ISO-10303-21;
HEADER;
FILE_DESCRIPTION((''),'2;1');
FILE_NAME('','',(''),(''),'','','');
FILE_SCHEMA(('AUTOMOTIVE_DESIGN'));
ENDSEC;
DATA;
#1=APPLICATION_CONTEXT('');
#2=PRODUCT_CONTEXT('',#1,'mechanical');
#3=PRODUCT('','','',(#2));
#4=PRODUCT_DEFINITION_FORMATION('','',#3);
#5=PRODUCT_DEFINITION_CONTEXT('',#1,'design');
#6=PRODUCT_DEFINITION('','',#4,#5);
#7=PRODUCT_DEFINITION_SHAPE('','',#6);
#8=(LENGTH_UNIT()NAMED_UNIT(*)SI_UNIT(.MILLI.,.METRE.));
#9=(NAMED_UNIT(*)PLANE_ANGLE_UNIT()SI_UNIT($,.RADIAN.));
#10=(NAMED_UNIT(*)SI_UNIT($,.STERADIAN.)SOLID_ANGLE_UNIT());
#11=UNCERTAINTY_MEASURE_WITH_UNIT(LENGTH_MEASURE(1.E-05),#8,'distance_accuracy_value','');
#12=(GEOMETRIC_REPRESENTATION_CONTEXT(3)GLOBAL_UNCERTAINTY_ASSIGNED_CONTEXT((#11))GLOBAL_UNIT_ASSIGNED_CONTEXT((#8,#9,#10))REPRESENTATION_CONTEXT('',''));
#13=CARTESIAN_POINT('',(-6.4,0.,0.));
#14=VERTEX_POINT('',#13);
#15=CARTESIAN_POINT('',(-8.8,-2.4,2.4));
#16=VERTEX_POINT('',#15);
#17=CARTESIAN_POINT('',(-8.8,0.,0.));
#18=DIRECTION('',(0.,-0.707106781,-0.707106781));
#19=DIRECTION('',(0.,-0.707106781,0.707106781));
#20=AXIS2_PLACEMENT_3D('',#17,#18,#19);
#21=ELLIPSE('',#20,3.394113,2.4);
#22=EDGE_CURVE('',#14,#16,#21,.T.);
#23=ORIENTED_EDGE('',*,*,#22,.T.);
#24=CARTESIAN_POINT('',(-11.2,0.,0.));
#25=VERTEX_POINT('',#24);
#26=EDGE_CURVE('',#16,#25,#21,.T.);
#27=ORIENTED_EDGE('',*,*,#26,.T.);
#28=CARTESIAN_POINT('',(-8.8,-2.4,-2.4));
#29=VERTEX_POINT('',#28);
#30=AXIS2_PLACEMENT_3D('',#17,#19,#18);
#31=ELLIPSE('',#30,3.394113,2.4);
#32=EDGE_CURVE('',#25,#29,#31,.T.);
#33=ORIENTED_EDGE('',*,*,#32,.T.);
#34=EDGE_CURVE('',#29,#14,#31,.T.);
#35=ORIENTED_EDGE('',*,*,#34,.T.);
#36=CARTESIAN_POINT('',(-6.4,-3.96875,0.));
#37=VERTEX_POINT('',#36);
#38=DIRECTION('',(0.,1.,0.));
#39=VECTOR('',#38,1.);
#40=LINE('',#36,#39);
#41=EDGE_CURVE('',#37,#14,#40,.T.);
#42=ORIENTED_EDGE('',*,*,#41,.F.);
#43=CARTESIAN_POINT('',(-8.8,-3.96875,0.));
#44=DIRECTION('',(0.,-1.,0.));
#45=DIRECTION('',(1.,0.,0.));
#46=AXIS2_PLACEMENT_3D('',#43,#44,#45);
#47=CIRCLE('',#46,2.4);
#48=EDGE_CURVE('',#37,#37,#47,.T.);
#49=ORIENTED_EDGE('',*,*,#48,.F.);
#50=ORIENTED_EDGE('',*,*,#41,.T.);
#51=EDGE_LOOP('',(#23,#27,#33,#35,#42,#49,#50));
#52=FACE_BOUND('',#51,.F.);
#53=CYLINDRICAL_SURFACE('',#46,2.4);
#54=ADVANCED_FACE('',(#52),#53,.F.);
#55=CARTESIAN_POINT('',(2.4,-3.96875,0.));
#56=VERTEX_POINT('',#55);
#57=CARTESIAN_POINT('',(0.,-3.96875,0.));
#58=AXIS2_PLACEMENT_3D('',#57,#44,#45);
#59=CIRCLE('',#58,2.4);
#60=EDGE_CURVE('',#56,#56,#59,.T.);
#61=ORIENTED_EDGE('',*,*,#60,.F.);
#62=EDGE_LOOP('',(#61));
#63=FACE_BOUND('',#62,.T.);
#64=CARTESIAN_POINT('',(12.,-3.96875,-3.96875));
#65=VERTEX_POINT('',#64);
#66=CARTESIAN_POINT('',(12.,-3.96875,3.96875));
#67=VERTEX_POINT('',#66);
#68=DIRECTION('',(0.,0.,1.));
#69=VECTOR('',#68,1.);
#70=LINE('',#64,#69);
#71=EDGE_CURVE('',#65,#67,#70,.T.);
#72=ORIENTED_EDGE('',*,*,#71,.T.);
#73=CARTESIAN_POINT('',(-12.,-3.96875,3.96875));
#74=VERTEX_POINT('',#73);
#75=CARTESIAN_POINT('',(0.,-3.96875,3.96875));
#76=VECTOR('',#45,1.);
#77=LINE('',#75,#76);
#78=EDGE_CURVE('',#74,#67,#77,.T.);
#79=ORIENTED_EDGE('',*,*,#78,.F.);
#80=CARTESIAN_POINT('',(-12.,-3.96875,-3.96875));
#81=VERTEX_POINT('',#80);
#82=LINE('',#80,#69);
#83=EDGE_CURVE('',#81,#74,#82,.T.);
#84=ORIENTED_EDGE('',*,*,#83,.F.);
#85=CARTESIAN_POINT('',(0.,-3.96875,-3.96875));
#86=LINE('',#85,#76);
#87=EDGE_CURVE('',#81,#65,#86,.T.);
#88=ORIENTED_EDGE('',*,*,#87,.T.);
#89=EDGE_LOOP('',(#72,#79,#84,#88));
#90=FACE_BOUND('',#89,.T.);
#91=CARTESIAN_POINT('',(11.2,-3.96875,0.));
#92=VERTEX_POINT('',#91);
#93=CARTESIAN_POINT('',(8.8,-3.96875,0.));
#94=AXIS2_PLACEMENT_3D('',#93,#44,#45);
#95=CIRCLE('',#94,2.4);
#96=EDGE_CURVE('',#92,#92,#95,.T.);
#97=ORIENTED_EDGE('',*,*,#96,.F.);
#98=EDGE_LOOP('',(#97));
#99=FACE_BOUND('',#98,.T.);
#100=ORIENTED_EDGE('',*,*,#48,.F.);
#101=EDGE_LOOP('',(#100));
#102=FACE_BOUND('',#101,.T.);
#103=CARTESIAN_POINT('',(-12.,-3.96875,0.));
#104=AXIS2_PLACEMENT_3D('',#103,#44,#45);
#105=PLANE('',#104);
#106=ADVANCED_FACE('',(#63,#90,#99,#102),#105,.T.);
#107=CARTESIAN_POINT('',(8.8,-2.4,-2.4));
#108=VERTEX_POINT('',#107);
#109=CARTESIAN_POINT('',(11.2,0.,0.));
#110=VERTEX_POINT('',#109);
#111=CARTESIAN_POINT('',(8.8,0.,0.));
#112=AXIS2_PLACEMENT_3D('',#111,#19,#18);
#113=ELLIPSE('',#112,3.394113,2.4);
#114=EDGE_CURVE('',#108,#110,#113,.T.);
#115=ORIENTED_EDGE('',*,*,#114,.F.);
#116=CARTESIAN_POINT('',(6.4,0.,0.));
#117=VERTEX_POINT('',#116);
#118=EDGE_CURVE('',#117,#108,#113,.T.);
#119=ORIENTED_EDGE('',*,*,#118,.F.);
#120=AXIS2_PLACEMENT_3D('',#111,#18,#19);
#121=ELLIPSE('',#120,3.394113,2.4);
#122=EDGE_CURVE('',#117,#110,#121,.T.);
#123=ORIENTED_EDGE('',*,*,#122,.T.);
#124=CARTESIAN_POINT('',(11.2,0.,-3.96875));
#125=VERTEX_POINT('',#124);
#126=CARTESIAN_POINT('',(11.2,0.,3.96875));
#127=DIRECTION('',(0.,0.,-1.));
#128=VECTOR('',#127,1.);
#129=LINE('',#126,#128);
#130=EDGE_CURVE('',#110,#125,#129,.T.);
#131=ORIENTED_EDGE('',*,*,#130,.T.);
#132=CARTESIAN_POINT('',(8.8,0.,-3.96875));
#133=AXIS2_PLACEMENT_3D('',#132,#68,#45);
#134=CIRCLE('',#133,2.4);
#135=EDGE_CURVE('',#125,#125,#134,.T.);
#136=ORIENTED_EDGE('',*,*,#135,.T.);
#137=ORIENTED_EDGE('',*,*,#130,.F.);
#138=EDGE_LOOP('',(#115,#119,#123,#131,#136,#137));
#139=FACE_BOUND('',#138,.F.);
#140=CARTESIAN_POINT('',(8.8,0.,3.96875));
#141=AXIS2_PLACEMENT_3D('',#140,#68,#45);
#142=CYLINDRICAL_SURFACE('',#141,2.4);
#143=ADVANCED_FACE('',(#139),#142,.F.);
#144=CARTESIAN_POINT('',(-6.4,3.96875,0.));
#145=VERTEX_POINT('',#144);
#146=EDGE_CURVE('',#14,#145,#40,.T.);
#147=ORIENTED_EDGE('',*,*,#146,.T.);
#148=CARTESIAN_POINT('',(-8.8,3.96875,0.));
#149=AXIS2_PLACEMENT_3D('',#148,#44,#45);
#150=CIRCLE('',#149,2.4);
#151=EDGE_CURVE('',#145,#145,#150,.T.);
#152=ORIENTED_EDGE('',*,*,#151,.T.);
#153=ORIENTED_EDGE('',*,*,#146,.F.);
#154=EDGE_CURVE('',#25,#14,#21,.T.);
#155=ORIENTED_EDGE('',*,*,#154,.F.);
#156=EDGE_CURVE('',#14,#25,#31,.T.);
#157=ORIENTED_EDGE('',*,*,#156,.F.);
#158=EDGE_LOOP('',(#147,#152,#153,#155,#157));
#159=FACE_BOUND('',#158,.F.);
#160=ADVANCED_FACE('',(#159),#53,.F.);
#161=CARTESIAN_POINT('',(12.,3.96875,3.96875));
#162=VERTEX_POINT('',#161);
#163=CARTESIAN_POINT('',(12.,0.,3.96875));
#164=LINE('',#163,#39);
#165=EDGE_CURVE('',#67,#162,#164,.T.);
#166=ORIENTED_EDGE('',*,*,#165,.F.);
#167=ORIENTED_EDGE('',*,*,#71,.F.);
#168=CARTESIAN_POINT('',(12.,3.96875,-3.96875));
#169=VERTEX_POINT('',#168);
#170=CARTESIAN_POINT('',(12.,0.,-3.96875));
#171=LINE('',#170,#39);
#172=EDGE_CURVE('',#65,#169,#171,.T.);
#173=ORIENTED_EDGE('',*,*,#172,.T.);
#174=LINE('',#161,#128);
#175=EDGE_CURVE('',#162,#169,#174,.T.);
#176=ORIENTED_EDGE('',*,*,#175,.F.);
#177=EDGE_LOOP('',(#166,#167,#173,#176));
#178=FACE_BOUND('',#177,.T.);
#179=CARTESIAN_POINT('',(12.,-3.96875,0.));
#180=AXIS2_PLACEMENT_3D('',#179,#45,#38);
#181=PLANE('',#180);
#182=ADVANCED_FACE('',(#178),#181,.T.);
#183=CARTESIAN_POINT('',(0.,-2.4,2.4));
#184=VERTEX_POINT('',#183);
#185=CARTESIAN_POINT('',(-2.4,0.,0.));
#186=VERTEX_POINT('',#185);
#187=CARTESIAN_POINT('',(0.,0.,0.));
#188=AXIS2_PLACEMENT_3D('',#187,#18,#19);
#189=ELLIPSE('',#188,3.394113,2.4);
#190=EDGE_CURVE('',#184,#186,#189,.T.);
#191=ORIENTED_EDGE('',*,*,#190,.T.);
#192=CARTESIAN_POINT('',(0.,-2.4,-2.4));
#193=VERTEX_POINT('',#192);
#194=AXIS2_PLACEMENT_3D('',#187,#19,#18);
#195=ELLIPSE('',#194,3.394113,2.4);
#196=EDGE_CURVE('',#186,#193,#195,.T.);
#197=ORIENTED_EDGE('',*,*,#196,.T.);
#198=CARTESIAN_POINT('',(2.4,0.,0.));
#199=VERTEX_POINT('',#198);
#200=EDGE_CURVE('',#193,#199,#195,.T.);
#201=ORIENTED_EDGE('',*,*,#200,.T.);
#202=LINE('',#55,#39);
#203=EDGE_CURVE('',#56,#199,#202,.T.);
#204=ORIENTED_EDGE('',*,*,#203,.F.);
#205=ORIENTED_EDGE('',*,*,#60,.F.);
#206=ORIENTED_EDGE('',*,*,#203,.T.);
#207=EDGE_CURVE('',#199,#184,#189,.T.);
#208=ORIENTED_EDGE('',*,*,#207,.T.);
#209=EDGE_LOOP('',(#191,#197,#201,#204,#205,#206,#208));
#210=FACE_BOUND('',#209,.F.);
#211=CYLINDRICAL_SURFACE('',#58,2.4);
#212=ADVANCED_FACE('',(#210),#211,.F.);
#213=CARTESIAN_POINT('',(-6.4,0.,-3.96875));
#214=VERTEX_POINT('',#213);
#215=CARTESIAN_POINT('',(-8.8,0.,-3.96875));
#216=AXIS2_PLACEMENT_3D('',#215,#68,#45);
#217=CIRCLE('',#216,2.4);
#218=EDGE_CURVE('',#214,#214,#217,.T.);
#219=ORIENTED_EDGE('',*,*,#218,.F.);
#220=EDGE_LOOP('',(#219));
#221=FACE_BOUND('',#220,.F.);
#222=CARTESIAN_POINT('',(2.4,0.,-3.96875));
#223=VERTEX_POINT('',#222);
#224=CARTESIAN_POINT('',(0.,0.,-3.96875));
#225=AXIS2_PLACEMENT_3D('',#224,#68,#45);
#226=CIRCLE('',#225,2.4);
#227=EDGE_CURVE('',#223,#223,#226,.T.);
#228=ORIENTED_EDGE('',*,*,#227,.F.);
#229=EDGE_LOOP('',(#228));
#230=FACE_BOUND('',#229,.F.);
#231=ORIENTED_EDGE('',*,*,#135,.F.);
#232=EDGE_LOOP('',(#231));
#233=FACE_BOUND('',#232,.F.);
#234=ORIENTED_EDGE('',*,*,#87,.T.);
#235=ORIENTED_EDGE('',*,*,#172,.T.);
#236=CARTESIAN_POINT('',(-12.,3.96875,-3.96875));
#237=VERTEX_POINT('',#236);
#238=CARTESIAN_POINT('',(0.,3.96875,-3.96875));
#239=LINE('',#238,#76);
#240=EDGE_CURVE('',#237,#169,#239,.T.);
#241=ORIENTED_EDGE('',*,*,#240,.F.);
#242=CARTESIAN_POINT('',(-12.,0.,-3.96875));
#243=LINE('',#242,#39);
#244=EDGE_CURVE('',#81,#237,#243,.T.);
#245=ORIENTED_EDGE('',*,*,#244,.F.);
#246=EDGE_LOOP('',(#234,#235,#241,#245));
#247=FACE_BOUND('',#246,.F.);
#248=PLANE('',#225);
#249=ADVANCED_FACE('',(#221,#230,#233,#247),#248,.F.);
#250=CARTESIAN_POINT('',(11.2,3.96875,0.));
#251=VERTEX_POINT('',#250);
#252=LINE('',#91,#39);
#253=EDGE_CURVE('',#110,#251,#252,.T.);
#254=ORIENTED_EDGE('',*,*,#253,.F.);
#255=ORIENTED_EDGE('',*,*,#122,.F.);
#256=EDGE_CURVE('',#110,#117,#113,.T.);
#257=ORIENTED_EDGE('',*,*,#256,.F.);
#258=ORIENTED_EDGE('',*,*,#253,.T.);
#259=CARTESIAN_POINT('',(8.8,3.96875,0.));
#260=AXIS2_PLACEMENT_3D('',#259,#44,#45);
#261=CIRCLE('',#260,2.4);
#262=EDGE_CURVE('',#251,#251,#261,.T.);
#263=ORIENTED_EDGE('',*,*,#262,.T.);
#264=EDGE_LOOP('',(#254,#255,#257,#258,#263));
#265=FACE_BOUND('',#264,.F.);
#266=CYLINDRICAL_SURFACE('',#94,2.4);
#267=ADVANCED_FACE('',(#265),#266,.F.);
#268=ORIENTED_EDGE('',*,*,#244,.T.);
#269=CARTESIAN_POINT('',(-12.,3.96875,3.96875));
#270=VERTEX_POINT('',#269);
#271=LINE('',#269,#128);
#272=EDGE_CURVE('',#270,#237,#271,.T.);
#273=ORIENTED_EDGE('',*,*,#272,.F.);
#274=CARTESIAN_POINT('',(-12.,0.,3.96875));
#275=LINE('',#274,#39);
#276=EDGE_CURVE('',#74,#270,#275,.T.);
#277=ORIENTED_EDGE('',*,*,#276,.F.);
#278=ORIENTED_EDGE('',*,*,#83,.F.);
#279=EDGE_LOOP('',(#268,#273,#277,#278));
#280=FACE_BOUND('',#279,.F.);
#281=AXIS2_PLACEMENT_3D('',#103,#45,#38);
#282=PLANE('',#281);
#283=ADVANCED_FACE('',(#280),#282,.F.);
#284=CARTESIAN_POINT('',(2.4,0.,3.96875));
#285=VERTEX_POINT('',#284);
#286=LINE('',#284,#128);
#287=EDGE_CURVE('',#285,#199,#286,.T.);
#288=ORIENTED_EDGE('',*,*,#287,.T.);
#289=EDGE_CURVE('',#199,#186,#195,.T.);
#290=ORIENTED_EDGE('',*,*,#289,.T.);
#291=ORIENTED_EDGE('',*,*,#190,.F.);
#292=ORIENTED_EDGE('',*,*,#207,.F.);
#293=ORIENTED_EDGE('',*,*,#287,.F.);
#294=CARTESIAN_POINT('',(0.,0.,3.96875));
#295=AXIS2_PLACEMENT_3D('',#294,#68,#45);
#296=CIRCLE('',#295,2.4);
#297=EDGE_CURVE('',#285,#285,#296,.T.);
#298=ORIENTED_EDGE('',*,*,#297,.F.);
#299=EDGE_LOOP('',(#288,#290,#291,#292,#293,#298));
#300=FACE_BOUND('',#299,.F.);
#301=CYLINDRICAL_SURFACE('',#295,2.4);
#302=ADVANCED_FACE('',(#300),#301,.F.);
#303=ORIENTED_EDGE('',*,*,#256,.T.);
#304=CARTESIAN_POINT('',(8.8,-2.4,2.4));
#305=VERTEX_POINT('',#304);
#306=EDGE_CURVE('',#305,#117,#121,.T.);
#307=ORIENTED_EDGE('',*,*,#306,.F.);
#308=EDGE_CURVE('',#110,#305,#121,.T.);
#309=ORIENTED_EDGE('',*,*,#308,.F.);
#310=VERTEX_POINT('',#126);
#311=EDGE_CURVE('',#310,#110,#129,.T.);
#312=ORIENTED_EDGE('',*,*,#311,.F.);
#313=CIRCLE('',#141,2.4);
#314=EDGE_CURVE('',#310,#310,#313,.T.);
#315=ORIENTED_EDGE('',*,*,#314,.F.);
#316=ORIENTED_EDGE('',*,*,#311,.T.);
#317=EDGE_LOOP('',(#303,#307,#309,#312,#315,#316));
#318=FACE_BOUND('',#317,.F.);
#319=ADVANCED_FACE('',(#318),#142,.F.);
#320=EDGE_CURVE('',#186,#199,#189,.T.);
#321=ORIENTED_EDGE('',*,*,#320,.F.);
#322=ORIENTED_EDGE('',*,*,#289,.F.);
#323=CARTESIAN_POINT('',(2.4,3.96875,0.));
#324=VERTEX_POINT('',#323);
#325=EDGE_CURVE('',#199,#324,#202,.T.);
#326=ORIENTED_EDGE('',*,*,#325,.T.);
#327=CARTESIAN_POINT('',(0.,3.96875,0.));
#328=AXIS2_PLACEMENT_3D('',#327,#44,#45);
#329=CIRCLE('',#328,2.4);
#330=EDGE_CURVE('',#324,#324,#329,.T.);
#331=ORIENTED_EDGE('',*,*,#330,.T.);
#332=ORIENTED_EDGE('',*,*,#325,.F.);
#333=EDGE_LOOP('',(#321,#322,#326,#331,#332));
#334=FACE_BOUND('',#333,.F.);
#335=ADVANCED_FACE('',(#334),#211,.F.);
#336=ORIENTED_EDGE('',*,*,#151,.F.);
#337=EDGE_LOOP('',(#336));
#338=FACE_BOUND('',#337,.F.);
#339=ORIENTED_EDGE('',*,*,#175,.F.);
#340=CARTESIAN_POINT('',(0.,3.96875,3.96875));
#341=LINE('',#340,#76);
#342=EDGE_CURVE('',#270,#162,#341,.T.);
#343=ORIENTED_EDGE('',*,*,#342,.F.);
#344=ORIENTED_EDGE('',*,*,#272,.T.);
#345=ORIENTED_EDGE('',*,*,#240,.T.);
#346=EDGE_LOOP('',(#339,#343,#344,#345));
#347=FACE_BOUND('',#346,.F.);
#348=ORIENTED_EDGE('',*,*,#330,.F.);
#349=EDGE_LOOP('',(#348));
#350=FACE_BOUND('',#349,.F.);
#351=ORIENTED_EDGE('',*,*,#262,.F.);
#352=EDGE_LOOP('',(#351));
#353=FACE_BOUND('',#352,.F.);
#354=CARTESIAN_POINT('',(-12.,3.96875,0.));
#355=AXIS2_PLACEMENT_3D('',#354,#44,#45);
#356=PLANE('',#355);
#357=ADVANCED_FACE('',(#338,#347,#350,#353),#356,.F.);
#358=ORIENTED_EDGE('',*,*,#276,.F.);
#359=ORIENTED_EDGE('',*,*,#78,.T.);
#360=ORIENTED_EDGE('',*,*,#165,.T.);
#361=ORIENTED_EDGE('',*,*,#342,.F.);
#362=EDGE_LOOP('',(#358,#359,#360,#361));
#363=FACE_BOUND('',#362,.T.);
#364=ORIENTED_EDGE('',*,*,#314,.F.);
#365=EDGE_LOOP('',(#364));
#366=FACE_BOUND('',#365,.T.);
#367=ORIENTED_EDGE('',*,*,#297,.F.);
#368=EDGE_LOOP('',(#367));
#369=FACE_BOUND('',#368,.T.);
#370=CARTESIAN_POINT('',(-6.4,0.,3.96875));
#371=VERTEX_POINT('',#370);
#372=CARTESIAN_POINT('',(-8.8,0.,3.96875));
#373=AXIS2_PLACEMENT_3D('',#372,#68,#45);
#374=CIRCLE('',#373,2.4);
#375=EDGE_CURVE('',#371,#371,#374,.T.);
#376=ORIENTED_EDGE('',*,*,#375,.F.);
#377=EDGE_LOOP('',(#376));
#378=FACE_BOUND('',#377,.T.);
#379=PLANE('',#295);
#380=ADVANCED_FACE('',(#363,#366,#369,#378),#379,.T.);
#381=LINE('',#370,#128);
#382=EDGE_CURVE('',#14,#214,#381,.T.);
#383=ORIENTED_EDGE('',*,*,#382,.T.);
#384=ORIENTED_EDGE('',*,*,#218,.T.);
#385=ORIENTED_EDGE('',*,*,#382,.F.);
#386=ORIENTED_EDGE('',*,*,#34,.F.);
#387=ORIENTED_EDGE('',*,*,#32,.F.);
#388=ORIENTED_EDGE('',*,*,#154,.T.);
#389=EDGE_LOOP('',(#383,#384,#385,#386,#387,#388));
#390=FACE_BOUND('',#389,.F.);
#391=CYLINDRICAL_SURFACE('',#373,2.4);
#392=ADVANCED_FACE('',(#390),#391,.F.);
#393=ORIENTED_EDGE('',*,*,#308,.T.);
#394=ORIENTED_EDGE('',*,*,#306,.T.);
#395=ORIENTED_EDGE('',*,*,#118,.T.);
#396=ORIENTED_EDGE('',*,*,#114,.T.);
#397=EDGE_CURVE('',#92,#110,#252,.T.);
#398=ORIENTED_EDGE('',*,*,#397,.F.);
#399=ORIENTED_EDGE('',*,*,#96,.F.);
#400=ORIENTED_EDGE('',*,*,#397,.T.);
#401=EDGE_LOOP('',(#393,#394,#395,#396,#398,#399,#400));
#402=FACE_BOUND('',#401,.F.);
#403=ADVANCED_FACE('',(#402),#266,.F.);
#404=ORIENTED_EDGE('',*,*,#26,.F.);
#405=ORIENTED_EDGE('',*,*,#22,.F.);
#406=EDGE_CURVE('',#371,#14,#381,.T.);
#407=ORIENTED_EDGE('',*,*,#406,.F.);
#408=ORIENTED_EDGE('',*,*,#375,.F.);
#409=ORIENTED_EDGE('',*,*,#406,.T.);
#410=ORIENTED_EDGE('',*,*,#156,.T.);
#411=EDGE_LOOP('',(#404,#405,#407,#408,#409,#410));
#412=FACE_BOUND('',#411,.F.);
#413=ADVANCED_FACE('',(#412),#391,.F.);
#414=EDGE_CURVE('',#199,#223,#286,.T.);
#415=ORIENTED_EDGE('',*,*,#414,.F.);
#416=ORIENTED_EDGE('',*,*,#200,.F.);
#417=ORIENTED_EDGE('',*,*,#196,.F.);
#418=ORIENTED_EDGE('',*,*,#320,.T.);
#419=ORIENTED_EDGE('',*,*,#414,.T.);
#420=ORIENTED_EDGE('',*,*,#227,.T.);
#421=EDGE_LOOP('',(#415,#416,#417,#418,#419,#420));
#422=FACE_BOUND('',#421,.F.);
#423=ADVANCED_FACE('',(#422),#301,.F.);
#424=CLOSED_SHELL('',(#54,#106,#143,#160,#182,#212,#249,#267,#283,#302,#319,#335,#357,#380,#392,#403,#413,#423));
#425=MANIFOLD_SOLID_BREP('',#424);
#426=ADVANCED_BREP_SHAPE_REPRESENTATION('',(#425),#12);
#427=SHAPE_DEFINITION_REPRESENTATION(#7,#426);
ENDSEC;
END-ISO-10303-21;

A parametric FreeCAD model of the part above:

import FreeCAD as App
import Part
import Sketcher
from FreeCAD import Vector
Q = App.Units.Quantity


def add_polygon(sketch, points):
    """Adds a closed chain of lines whose ends are joined by coincident constraints."""
    first, n = sketch.GeometryCount, len(points)
    for a, b in zip(points, points[1:] + points[:1]):
        sketch.addGeometry(Part.LineSegment(App.Vector(*a, 0), App.Vector(*b, 0)), False)
    for i in range(n):
        sketch.addConstraint(Sketcher.Constraint("Coincident", first + i, 2, first + (i + 1) % n, 1))

doc = App.newDocument("Part")
body = doc.addObject("PartDesign::Body", "Body")

sketch1 = body.newObject("Sketcher::SketchObject", "Sketch")
sketch1.AttachmentSupport = (doc.getObject("XY_Plane"), [""])
sketch1.MapMode = "FlatFace"
add_polygon(sketch1, [(-12, 4), (-12, -4), (12, -4), (12, 4)])
sketch1.addConstraint([
    Sketcher.Constraint("Vertical", 0),
    Sketcher.Constraint("Horizontal", 1),
    Sketcher.Constraint("Vertical", 2),
    Sketcher.Constraint("Horizontal", 3),
    Sketcher.Constraint("Symmetric", 0, 2, 2, 2, -1, 1),
    Sketcher.Constraint("DistanceX", 1, 1, 1, 2, Q("24 mm")),
    Sketcher.Constraint("DistanceY", 0, 2, 0, 1, Q("7.9375 mm")),
])
pad1 = body.newObject("PartDesign::Pad", "Pad")
pad1.Profile = sketch1
pad1.Length = 7.9375
pad1.Midplane = True

sketch2 = body.newObject("Sketcher::SketchObject", "Sketch001")
sketch2.AttachmentSupport = (doc.getObject("XZ_Plane"), [""])
sketch2.MapMode = "FlatFace"
sketch2.AttachmentOffset = App.Placement(Vector(0, 0, 3.96875), App.Rotation())
sketch2.addGeometry([
    Part.Circle(Vector(0, 0, 0), Vector(0, 0, 1), 2.4),
    Part.Circle(Vector(8.8, 0, 0), Vector(0, 0, 1), 2.4),
    Part.Circle(Vector(-8.8, 0, 0), Vector(0, 0, 1), 2.4),
], False)
sketch2.addConstraint([
    Sketcher.Constraint("Coincident", 0, 3, -1, 1),
    Sketcher.Constraint("Equal", 0, 1),
    Sketcher.Constraint("Equal", 1, 2),
    Sketcher.Constraint("Symmetric", 1, 3, 2, 3, -1, 1),
    Sketcher.Constraint("PointOnObject", 1, 3, -1),
    Sketcher.Constraint("Diameter", 0, Q("4.8 mm")),
    Sketcher.Constraint("DistanceX", -1, 1, 1, 3, Q("8.8 mm")),
])
pocket1 = body.newObject("PartDesign::Pocket", "Pocket")
pocket1.Profile = sketch2
pocket1.Type = "ThroughAll"

sketch3 = body.newObject("Sketcher::SketchObject", "Sketch002")
sketch3.AttachmentSupport = (doc.getObject("XY_Plane"), [""])
sketch3.MapMode = "FlatFace"
sketch3.AttachmentOffset = App.Placement(Vector(0, 0, 3.96875), App.Rotation())
sketch3.addGeometry([
    Part.Circle(Vector(0, 0, 0), Vector(0, 0, 1), 2.4),
    Part.Circle(Vector(8.8, 0, 0), Vector(0, 0, 1), 2.4),
    Part.Circle(Vector(-8.8, 0, 0), Vector(0, 0, 1), 2.4),
], False)
sketch3.addConstraint([
    Sketcher.Constraint("Coincident", 0, 3, -1, 1),
    Sketcher.Constraint("Equal", 0, 1),
    Sketcher.Constraint("Equal", 1, 2),
    Sketcher.Constraint("Symmetric", 1, 3, 2, 3, -1, 1),
    Sketcher.Constraint("PointOnObject", 1, 3, -1),
    Sketcher.Constraint("Diameter", 0, Q("4.8 mm")),
    Sketcher.Constraint("DistanceX", -1, 1, 1, 3, Q("8.8 mm")),
])
pocket2 = body.newObject("PartDesign::Pocket", "Pocket001")
pocket2.Profile = sketch3
pocket2.Type = "ThroughAll"

doc.recompute()
